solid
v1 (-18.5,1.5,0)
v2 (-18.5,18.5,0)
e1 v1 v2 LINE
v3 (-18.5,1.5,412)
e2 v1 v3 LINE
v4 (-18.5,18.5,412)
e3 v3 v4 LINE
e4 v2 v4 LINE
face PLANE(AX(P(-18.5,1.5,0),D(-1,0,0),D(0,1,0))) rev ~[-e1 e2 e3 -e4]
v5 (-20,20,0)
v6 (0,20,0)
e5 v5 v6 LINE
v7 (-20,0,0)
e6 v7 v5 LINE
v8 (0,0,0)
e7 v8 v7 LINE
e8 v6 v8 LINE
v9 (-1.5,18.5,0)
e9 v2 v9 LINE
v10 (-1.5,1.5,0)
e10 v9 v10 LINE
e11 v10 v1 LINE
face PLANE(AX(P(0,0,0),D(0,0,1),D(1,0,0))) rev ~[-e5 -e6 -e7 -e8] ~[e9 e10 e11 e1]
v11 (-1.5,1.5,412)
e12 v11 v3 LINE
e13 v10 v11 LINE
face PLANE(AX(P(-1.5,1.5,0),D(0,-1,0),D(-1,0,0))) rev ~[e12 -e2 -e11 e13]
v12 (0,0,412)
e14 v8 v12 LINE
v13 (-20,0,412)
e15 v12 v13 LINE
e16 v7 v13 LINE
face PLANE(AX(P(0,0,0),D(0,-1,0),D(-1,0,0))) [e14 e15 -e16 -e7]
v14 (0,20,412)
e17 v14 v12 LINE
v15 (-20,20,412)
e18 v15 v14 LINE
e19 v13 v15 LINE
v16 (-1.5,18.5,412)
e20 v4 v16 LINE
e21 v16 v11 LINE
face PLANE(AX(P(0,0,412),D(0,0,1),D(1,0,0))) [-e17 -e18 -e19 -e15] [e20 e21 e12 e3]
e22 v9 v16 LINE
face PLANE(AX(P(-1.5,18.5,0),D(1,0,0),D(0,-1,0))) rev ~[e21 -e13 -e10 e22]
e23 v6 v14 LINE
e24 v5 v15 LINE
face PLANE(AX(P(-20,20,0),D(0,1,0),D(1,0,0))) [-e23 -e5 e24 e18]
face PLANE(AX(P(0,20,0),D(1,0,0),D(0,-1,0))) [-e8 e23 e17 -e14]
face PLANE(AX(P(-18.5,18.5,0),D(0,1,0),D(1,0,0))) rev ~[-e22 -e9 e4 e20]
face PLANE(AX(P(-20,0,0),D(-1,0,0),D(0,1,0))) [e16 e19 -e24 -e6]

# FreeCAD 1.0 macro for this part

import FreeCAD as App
import Part
import Sketcher
from FreeCAD import Vector


def add_polygon(sketch, points):
    """Adds a closed chain of lines whose ends are joined by coincident constraints."""
    first, n = sketch.GeometryCount, len(points)
    for a, b in zip(points, points[1:] + points[:1]):
        sketch.addGeometry(Part.LineSegment(App.Vector(*a, 0), App.Vector(*b, 0)), False)
    for i in range(n):
        sketch.addConstraint(Sketcher.Constraint("Coincident", first + i, 2, first + (i + 1) % n, 1))

doc = App.newDocument("Part")
body = doc.addObject("PartDesign::Body", "Body")

# Sketch on XY plane
sketch1 = doc.addObject("Sketcher::SketchObject", "Sketch")
body.addObject(sketch1)
sketch1.AttachmentSupport = (doc.XY_Plane, [""])
sketch1.MapMode = "FlatFace"
add_polygon(sketch1, [(-20, 0), (0, 0), (0, 20), (-20, 20)])  # lines 0-3
add_polygon(sketch1, [(-1.5, 18.5), (-1.5, 1.5), (-18.5, 1.5), (-18.5, 18.5)])  # lines 4-7
sketch1.addConstraint(Sketcher.Constraint("Horizontal", 0))
sketch1.addConstraint(Sketcher.Constraint("Vertical", 1))
sketch1.addConstraint(Sketcher.Constraint("Horizontal", 2))
sketch1.addConstraint(Sketcher.Constraint("Vertical", 3))
sketch1.addConstraint(Sketcher.Constraint("Vertical", 4))
sketch1.addConstraint(Sketcher.Constraint("Horizontal", 5))
sketch1.addConstraint(Sketcher.Constraint("Vertical", 6))
sketch1.addConstraint(Sketcher.Constraint("Horizontal", 7))
sketch1.addConstraint(Sketcher.Constraint("Coincident", 0, 2, -1, 1))
sketch1.addConstraint(Sketcher.Constraint("Equal", 2, 1))
sketch1.addConstraint(Sketcher.Constraint("Equal", 7, 4))
sketch1.addConstraint(Sketcher.Constraint("DistanceX", 0, 1, 0, 2, 20.0))
sketch1.addConstraint(Sketcher.Constraint("DistanceX", 4, 2, -1, 1, 1.5))
sketch1.addConstraint(Sketcher.Constraint("DistanceY", -1, 1, 4, 2, 1.5))
sketch1.addConstraint(Sketcher.Constraint("DistanceX", 3, 2, 5, 2, 1.5))
pad1 = doc.addObject("PartDesign::Pad", "Pad")
body.addObject(pad1)
pad1.Profile = sketch1
pad1.Length = 412

doc.recompute()
